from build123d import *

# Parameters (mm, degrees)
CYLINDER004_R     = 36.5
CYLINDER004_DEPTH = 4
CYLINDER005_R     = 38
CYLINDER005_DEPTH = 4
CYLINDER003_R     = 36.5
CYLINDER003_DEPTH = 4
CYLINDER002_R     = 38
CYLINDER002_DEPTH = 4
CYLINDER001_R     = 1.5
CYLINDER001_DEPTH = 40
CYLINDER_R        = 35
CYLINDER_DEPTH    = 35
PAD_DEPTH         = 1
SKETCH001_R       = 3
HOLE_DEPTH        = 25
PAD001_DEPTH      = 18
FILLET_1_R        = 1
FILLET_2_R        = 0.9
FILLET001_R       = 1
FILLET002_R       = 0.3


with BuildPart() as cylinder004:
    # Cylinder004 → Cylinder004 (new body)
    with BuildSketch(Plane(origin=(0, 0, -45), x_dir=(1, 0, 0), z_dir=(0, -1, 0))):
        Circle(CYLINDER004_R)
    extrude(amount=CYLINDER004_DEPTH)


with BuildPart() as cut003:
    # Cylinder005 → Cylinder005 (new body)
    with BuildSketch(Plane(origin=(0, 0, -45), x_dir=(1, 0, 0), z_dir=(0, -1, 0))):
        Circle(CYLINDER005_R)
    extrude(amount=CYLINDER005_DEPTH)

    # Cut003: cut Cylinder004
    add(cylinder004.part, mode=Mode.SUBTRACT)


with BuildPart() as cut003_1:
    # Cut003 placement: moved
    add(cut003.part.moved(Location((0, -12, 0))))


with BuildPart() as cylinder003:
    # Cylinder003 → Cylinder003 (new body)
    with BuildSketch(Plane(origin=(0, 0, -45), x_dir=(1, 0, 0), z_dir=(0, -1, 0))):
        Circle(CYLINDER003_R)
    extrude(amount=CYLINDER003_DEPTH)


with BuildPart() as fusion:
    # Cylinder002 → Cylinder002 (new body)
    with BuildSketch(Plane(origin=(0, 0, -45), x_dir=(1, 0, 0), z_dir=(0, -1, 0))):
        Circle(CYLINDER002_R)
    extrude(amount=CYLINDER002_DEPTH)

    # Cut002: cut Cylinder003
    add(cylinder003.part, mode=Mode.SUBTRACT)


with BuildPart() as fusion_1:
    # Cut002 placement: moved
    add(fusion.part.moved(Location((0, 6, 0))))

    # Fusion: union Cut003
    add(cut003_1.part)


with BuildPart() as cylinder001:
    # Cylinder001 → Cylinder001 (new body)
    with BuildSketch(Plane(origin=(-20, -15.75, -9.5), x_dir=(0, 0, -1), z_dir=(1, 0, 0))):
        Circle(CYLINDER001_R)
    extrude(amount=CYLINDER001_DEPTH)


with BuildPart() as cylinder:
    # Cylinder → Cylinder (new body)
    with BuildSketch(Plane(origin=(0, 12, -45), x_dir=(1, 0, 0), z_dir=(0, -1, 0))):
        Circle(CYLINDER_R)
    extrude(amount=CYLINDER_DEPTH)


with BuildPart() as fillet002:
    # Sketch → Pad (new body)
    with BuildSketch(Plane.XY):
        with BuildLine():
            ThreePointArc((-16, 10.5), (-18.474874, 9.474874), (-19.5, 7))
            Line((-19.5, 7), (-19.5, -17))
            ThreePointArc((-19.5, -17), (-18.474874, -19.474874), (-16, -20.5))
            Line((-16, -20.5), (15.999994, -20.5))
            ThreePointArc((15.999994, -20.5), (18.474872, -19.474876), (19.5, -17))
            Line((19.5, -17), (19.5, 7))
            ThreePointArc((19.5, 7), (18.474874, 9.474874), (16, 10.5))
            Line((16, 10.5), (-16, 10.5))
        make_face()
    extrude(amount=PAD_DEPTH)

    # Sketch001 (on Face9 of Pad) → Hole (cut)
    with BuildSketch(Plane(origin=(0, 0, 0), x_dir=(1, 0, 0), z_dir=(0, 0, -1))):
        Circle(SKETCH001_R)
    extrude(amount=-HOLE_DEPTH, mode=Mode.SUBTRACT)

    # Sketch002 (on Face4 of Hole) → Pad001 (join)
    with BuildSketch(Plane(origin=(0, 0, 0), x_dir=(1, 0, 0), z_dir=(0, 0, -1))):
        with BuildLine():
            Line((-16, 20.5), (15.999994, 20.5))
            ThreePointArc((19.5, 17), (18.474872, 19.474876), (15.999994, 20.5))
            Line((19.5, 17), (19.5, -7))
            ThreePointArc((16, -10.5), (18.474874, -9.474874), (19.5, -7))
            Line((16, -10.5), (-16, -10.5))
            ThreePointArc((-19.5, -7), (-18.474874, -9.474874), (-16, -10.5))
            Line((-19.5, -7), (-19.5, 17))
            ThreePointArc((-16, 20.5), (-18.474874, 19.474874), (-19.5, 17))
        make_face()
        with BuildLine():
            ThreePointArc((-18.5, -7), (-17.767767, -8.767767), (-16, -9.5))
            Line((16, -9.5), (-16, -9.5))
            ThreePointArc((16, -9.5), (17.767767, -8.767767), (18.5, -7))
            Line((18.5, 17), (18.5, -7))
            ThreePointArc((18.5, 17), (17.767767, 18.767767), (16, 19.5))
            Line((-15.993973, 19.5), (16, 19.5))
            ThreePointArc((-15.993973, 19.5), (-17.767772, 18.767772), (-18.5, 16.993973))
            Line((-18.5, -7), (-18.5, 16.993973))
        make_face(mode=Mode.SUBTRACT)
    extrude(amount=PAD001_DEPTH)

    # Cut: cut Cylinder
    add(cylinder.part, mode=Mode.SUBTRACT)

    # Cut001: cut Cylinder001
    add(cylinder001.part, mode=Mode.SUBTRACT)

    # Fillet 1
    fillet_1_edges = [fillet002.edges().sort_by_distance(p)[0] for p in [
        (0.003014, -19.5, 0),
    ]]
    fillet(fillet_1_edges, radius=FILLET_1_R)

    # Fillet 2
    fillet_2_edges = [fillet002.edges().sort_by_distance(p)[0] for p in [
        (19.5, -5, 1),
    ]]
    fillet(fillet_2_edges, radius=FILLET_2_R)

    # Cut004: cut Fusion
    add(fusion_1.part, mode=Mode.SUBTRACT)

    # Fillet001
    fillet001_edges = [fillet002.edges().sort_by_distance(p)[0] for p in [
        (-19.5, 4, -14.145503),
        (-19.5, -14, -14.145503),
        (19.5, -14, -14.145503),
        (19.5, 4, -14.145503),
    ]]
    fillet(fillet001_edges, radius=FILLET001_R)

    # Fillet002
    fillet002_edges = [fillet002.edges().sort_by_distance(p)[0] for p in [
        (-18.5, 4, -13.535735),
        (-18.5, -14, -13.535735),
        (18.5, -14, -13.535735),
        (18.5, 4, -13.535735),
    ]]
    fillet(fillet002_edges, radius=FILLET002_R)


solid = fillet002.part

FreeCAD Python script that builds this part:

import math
import FreeCAD as App
import Part
import Sketcher

V = App.Vector


def edges_at(feature, points):
    """Names of the edges that pass closest to the given points."""
    edges = feature.Shape.Edges
    near = lambda p: min(range(len(edges)), key=lambda i: edges[i].distToShape(Part.Vertex(*p))[0])
    return sorted({f"Edge{near(p) + 1}" for p in points})

doc = App.newDocument("Part")
body = doc.addObject("PartDesign::Body", "Body")

sketch1 = body.newObject("Sketcher::SketchObject", "Sketch")
sketch1.AttachmentSupport = (doc.getObject("XZ_Plane"), [""])
sketch1.MapMode = "FlatFace"
sketch1.addGeometry(Part.Circle(V(0, -45, 0), V(0, 0, 1), 36), False)
sketch1.addConstraint(Sketcher.Constraint("PointOnObject", 0, 3, -2))
sketch1.addConstraint(Sketcher.Constraint("Diameter", 0, 73.0))
sketch1.addConstraint(Sketcher.Constraint("DistanceY", 0, 3, -1, 1, 45.0))
pad1 = body.newObject("PartDesign::Pad", "Pad")
pad1.Profile = sketch1
pad1.Length = 4
body2 = doc.addObject("PartDesign::Body", "Body001")

sketch2 = body2.newObject("Sketcher::SketchObject", "Sketch001")
sketch2.AttachmentSupport = (doc.getObject("XZ_Plane001"), [""])
sketch2.MapMode = "FlatFace"
sketch2.addGeometry(Part.Circle(V(0, -45, 0), V(0, 0, 1), 38), False)
sketch2.addConstraint(Sketcher.Constraint("PointOnObject", 0, 3, -2))
sketch2.addConstraint(Sketcher.Constraint("Diameter", 0, 76.0))
sketch2.addConstraint(Sketcher.Constraint("DistanceY", 0, 3, -1, 1, 45.0))
pad2 = body2.newObject("PartDesign::Pad", "Pad001")
pad2.Profile = sketch2
pad2.Length = 4
doc.recompute()

boolean = body2.newObject("PartDesign::Boolean", "Boolean")
boolean.Type = "Cut"
boolean.addObjects([body])
body3 = doc.addObject("PartDesign::Body", "Body002")
doc.recompute()

body2.Placement = App.Placement(V(0, -12, 0), App.Rotation(V(0, 0, 1), 0))
boolean2 = body3.newObject("PartDesign::Boolean", "Boolean001")
boolean2.Type = "Fuse"
boolean2.addObjects([body2])
body4 = doc.addObject("PartDesign::Body", "Body003")

sketch3 = body4.newObject("Sketcher::SketchObject", "Sketch002")
sketch3.AttachmentSupport = (doc.getObject("XZ_Plane003"), [""])
sketch3.MapMode = "FlatFace"
sketch3.addGeometry(Part.Circle(V(0, -45, 0), V(0, 0, 1), 36), False)
sketch3.addConstraint(Sketcher.Constraint("PointOnObject", 0, 3, -2))
sketch3.addConstraint(Sketcher.Constraint("Diameter", 0, 73.0))
sketch3.addConstraint(Sketcher.Constraint("DistanceY", 0, 3, -1, 1, 45.0))
pad3 = body4.newObject("PartDesign::Pad", "Pad002")
pad3.Profile = sketch3
pad3.Length = 4
body5 = doc.addObject("PartDesign::Body", "Body004")

sketch4 = body5.newObject("Sketcher::SketchObject", "Sketch003")
sketch4.AttachmentSupport = (doc.getObject("XZ_Plane004"), [""])
sketch4.MapMode = "FlatFace"
sketch4.addGeometry(Part.Circle(V(0, -45, 0), V(0, 0, 1), 38), False)
sketch4.addConstraint(Sketcher.Constraint("PointOnObject", 0, 3, -2))
sketch4.addConstraint(Sketcher.Constraint("Diameter", 0, 76.0))
sketch4.addConstraint(Sketcher.Constraint("DistanceY", 0, 3, -1, 1, 45.0))
pad4 = body5.newObject("PartDesign::Pad", "Pad003")
pad4.Profile = sketch4
pad4.Length = 4
doc.recompute()

boolean3 = body5.newObject("PartDesign::Boolean", "Boolean002")
boolean3.Type = "Cut"
boolean3.addObjects([body4])
body6 = doc.addObject("PartDesign::Body", "Body005")
body6.AllowCompound = True
doc.recompute()

body5.Placement = App.Placement(V(0, 6, 0), App.Rotation(V(0, 0, 1), 0))
boolean4 = body6.newObject("PartDesign::Boolean", "Boolean003")
boolean4.Type = "Fuse"
boolean4.addObjects([body5])
doc.recompute()

boolean5 = body6.newObject("PartDesign::Boolean", "Boolean004")
boolean5.Type = "Fuse"
boolean5.addObjects([body3])
body7 = doc.addObject("PartDesign::Body", "Body006")

sketch5 = body7.newObject("Sketcher::SketchObject", "Sketch004")
sketch5.AttachmentSupport = (doc.getObject("YZ_Plane006"), [""])
sketch5.MapMode = "FlatFace"
sketch5.AttachmentOffset = App.Placement(V(0, 0, -20), App.Rotation())
sketch5.addGeometry(Part.Circle(V(-15.8, -9.5, 0), V(0, 0, 1), 1.5), False)
sketch5.addConstraint(Sketcher.Constraint("Diameter", 0, 3.0))
sketch5.addConstraint(Sketcher.Constraint("DistanceY", 0, 3, -1, 1, 9.5))
sketch5.addConstraint(Sketcher.Constraint("DistanceX", 0, 3, -1, 1, 15.75))
pad5 = body7.newObject("PartDesign::Pad", "Pad004")
pad5.Profile = sketch5
pad5.Length = 40
body8 = doc.addObject("PartDesign::Body", "Body007")

sketch6 = body8.newObject("Sketcher::SketchObject", "Sketch005")
sketch6.AttachmentSupport = (doc.getObject("XZ_Plane007"), [""])
sketch6.MapMode = "FlatFace"
sketch6.AttachmentOffset = App.Placement(V(0, 0, -12), App.Rotation())
sketch6.addGeometry(Part.Circle(V(0, -45, 0), V(0, 0, 1), 35), False)
sketch6.addConstraint(Sketcher.Constraint("PointOnObject", 0, 3, -2))
sketch6.addConstraint(Sketcher.Constraint("Diameter", 0, 70.0))
sketch6.addConstraint(Sketcher.Constraint("DistanceY", 0, 3, -1, 1, 45.0))
pad6 = body8.newObject("PartDesign::Pad", "Pad005")
pad6.Profile = sketch6
pad6.Length = 35
body9 = doc.addObject("PartDesign::Body", "Body008")

sketch7 = body9.newObject("Sketcher::SketchObject", "Sketch006")
sketch7.AttachmentSupport = (doc.getObject("XY_Plane008"), [""])
sketch7.MapMode = "FlatFace"
sketch7.addGeometry(Part.ArcOfCircle(Part.Circle(V(-16, 7, 0), V(0, 0, 1), 3.5), math.radians(90), math.radians(180)), False)
sketch7.addGeometry(Part.LineSegment(V(-19.5, 7, 0), V(-19.5, -17, 0)), False)
sketch7.addGeometry(Part.ArcOfCircle(Part.Circle(V(-16, -17, 0), V(0, 0, 1), 3.5), math.radians(180), math.radians(270)), False)
sketch7.addGeometry(Part.LineSegment(V(-16, -20.5, 0), V(16, -20.5, 0)), False)
sketch7.addGeometry(Part.ArcOfCircle(Part.Circle(V(16, -17, 0), V(0, 0, 1), 3.5), math.radians(-90), math.radians(0)), False)
sketch7.addGeometry(Part.LineSegment(V(19.5, -17, 0), V(19.5, 7, 0)), False)
sketch7.addGeometry(Part.ArcOfCircle(Part.Circle(V(16, 7, 0), V(0, 0, 1), 3.5), math.radians(0), math.radians(90)), False)
sketch7.addGeometry(Part.LineSegment(V(16, 10.5, 0), V(-16, 10.5, 0)), False)
sketch7.addConstraint(Sketcher.Constraint("Tangent", 0, 2, 1, 1))
sketch7.addConstraint(Sketcher.Constraint("Tangent", 1, 2, 2, 1))
sketch7.addConstraint(Sketcher.Constraint("Tangent", 2, 2, 3, 1))
sketch7.addConstraint(Sketcher.Constraint("Tangent", 3, 2, 4, 1))
sketch7.addConstraint(Sketcher.Constraint("Tangent", 4, 2, 5, 1))
sketch7.addConstraint(Sketcher.Constraint("Tangent", 5, 2, 6, 1))
sketch7.addConstraint(Sketcher.Constraint("Tangent", 6, 2, 7, 1))
sketch7.addConstraint(Sketcher.Constraint("Tangent", 7, 2, 0, 1))
sketch7.addConstraint(Sketcher.Constraint("Vertical", 1))
sketch7.addConstraint(Sketcher.Constraint("Horizontal", 3))
sketch7.addConstraint(Sketcher.Constraint("Vertical", 5))
sketch7.addConstraint(Sketcher.Constraint("Horizontal", 7))
sketch7.addConstraint(Sketcher.Constraint("Equal", 0, 2))
sketch7.addConstraint(Sketcher.Constraint("Equal", 2, 4))
sketch7.addConstraint(Sketcher.Constraint("Equal", 4, 6))
sketch7.addConstraint(Sketcher.Constraint("Radius", 0, 3.499999))
sketch7.addConstraint(Sketcher.Constraint("DistanceX", 7, 2, 7, 1, 32.0))
sketch7.addConstraint(Sketcher.Constraint("DistanceY", 1, 2, 1, 1, 24.0))
sketch7.addConstraint(Sketcher.Constraint("DistanceX", 0, 3, -1, 1, 16.000001))
sketch7.addConstraint(Sketcher.Constraint("DistanceY", -1, 1, 0, 3, 7.000001))
pad7 = body9.newObject("PartDesign::Pad", "Pad006")
pad7.Profile = sketch7
pad7.Length = 1

sketch8 = body9.newObject("Sketcher::SketchObject", "Sketch007")
sketch8.AttachmentSupport = (doc.getObject("XY_Plane008"), [""])
sketch8.MapMode = "FlatFace"
sketch8.addGeometry(Part.Circle(V(0, 0, 0), V(0, 0, 1), 3), False)
sketch8.addConstraint(Sketcher.Constraint("Coincident", 0, 3, -1, 1))
sketch8.addConstraint(Sketcher.Constraint("Diameter", 0, 6.0))
pocket1 = body9.newObject("PartDesign::Pocket", "Pocket")
pocket1.Profile = sketch8
pocket1.Length = 25
pocket1.Reversed = True

sketch9 = body9.newObject("Sketcher::SketchObject", "Sketch008")
sketch9.AttachmentSupport = (doc.getObject("XY_Plane008"), [""])
sketch9.MapMode = "FlatFace"
sketch9.addGeometry(Part.LineSegment(V(15.999994, -20.5, 0), V(-16, -20.5, 0)), False)
sketch9.addGeometry(Part.ArcOfCircle(Part.Circle(V(-16.000001, -17.000001, 0), V(0, 0, 1), 3.499999), math.radians(179.999985), math.radians(270.000015)), False)
sketch9.addGeometry(Part.LineSegment(V(-19.5, -17, 0), V(-19.5, 7, 0)), False)
sketch9.addGeometry(Part.ArcOfCircle(Part.Circle(V(-16.000001, 7.000001, 0), V(0, 0, 1), 3.499999), math.radians(89.999985), math.radians(180.000015)), False)
sketch9.addGeometry(Part.LineSegment(V(-16, 10.5, 0), V(16, 10.5, 0)), False)
sketch9.addGeometry(Part.ArcOfCircle(Part.Circle(V(16.000001, 7.000001, 0), V(0, 0, 1), 3.499999), math.radians(-0.000015), math.radians(90.000015)), False)
sketch9.addGeometry(Part.LineSegment(V(19.5, 7, 0), V(19.5, -17, 0)), False)
sketch9.addGeometry(Part.ArcOfCircle(Part.Circle(V(16.000001, -17.000001, 0), V(0, 0, 1), 3.499999), math.radians(-90.000113), math.radians(0.000015)), False)
sketch9.addGeometry(Part.LineSegment(V(-18.5, 7, 0), V(-18.5, -16.993973, 0)), False)
sketch9.addGeometry(Part.ArcOfCircle(Part.Circle(V(-16, -17, 0), V(0, 0, 1), 2.500008), math.radians(179.861879), math.radians(270.138121)), False)
sketch9.addGeometry(Part.LineSegment(V(-15.993973, -19.5, 0), V(16, -19.5, 0)), False)
sketch9.addGeometry(Part.ArcOfCircle(Part.Circle(V(16, -17, 0), V(0, 0, 1), 2.5), math.radians(-90.000004), math.radians(0.000004)), False)
sketch9.addGeometry(Part.LineSegment(V(18.5, -17, 0), V(18.5, 7, 0)), False)
sketch9.addGeometry(Part.ArcOfCircle(Part.Circle(V(16, 7, 0), V(0, 0, 1), 2.5), math.radians(-0.000004), math.radians(90.000004)), False)
sketch9.addGeometry(Part.LineSegment(V(16, 9.5, 0), V(-16, 9.5, 0)), False)
sketch9.addGeometry(Part.ArcOfCircle(Part.Circle(V(-16, 7, 0), V(0, 0, 1), 2.5), math.radians(89.999996), math.radians(180.000004)), False)
sketch9.addConstraint(Sketcher.Constraint("Tangent", 0, 2, 1, 2))
sketch9.addConstraint(Sketcher.Constraint("Tangent", 1, 1, 2, 1))
sketch9.addConstraint(Sketcher.Constraint("Tangent", 2, 2, 3, 2))
sketch9.addConstraint(Sketcher.Constraint("Tangent", 3, 1, 4, 1))
sketch9.addConstraint(Sketcher.Constraint("Tangent", 4, 2, 5, 2))
sketch9.addConstraint(Sketcher.Constraint("Tangent", 5, 1, 6, 1))
sketch9.addConstraint(Sketcher.Constraint("Tangent", 6, 2, 7, 2))
sketch9.addConstraint(Sketcher.Constraint("Tangent", 7, 1, 0, 1))
sketch9.addConstraint(Sketcher.Constraint("Coincident", 8, 2, 9, 1))
sketch9.addConstraint(Sketcher.Constraint("Coincident", 9, 2, 10, 1))
sketch9.addConstraint(Sketcher.Constraint("Tangent", 10, 2, 11, 1))
sketch9.addConstraint(Sketcher.Constraint("Tangent", 11, 2, 12, 1))
sketch9.addConstraint(Sketcher.Constraint("Tangent", 12, 2, 13, 1))
sketch9.addConstraint(Sketcher.Constraint("Tangent", 13, 2, 14, 1))
sketch9.addConstraint(Sketcher.Constraint("Tangent", 14, 2, 15, 1))
sketch9.addConstraint(Sketcher.Constraint("Tangent", 15, 2, 8, 1))
sketch9.addConstraint(Sketcher.Constraint("Horizontal", 0))
sketch9.addConstraint(Sketcher.Constraint("Vertical", 2))
sketch9.addConstraint(Sketcher.Constraint("Horizontal", 4))
sketch9.addConstraint(Sketcher.Constraint("Vertical", 6))
sketch9.addConstraint(Sketcher.Constraint("Vertical", 8))
sketch9.addConstraint(Sketcher.Constraint("Horizontal", 10))
sketch9.addConstraint(Sketcher.Constraint("Vertical", 12))
sketch9.addConstraint(Sketcher.Constraint("Horizontal", 14))
sketch9.addConstraint(Sketcher.Constraint("Coincident", 9, 3, 1, 3))
sketch9.addConstraint(Sketcher.Constraint("Coincident", 11, 3, 7, 3))
sketch9.addConstraint(Sketcher.Constraint("Coincident", 13, 3, 5, 3))
sketch9.addConstraint(Sketcher.Constraint("Coincident", 15, 3, 3, 3))
sketch9.addConstraint(Sketcher.Constraint("Equal", 1, 3))
sketch9.addConstraint(Sketcher.Constraint("Equal", 3, 5))
sketch9.addConstraint(Sketcher.Constraint("Equal", 5, 7))
sketch9.addConstraint(Sketcher.Constraint("Radius", 1, 3.499999))
sketch9.addConstraint(Sketcher.Constraint("Radius", 11, 2.5))
sketch9.addConstraint(Sketcher.Constraint("DistanceX", 4, 1, 4, 2, 32.0))
sketch9.addConstraint(Sketcher.Constraint("DistanceY", 2, 1, 2, 2, 24.0))
sketch9.addConstraint(Sketcher.Constraint("DistanceX", 1, 3, -1, 1, 16.000001))
sketch9.addConstraint(Sketcher.Constraint("DistanceY", 1, 3, -1, 1, 17.000001))
sketch9.addConstraint(Sketcher.Constraint("DistanceX", 10, 1, 10, 2, 31.993973))
pad8 = body9.newObject("PartDesign::Pad", "Pad007")
pad8.Profile = sketch9
pad8.Length = 18
pad8.Reversed = True
doc.recompute()

boolean6 = body9.newObject("PartDesign::Boolean", "Boolean005")
boolean6.Type = "Cut"
boolean6.addObjects([body8])
doc.recompute()

boolean7 = body9.newObject("PartDesign::Boolean", "Boolean006")
boolean7.Type = "Cut"
boolean7.addObjects([body7])
doc.recompute()

fillet = body9.newObject("PartDesign::Fillet", "Fillet")
fillet.Base = (boolean7, edges_at(boolean7, [(0.003, -19.5, 0)]))
fillet.Radius = 1
doc.recompute()

fillet2 = body9.newObject("PartDesign::Fillet", "Fillet001")
fillet2.Base = (fillet, edges_at(fillet, [(19.5, -5, 1)]))
fillet2.Radius = 0.9
doc.recompute()

boolean8 = body9.newObject("PartDesign::Boolean", "Boolean007")
boolean8.Type = "Cut"
boolean8.addObjects([body6])
doc.recompute()

fillet3 = body9.newObject("PartDesign::Fillet", "Fillet002")
fillet3.Base = (boolean8, edges_at(boolean8, [
    (-19.5, 4, -14.146),
    (-19.5, -14, -14.146),
    (19.5, -14, -14.146),
    (19.5, 4, -14.146),
]))
fillet3.Radius = 1
doc.recompute()

fillet4 = body9.newObject("PartDesign::Fillet", "Fillet003")
fillet4.Base = (fillet3, edges_at(fillet3, [
    (-18.5, 4, -13.536),
    (-18.5, -14, -13.536),
    (18.5, -14, -13.536),
    (18.5, 4, -13.536),
]))
fillet4.Radius = 0.3

doc.recompute()
